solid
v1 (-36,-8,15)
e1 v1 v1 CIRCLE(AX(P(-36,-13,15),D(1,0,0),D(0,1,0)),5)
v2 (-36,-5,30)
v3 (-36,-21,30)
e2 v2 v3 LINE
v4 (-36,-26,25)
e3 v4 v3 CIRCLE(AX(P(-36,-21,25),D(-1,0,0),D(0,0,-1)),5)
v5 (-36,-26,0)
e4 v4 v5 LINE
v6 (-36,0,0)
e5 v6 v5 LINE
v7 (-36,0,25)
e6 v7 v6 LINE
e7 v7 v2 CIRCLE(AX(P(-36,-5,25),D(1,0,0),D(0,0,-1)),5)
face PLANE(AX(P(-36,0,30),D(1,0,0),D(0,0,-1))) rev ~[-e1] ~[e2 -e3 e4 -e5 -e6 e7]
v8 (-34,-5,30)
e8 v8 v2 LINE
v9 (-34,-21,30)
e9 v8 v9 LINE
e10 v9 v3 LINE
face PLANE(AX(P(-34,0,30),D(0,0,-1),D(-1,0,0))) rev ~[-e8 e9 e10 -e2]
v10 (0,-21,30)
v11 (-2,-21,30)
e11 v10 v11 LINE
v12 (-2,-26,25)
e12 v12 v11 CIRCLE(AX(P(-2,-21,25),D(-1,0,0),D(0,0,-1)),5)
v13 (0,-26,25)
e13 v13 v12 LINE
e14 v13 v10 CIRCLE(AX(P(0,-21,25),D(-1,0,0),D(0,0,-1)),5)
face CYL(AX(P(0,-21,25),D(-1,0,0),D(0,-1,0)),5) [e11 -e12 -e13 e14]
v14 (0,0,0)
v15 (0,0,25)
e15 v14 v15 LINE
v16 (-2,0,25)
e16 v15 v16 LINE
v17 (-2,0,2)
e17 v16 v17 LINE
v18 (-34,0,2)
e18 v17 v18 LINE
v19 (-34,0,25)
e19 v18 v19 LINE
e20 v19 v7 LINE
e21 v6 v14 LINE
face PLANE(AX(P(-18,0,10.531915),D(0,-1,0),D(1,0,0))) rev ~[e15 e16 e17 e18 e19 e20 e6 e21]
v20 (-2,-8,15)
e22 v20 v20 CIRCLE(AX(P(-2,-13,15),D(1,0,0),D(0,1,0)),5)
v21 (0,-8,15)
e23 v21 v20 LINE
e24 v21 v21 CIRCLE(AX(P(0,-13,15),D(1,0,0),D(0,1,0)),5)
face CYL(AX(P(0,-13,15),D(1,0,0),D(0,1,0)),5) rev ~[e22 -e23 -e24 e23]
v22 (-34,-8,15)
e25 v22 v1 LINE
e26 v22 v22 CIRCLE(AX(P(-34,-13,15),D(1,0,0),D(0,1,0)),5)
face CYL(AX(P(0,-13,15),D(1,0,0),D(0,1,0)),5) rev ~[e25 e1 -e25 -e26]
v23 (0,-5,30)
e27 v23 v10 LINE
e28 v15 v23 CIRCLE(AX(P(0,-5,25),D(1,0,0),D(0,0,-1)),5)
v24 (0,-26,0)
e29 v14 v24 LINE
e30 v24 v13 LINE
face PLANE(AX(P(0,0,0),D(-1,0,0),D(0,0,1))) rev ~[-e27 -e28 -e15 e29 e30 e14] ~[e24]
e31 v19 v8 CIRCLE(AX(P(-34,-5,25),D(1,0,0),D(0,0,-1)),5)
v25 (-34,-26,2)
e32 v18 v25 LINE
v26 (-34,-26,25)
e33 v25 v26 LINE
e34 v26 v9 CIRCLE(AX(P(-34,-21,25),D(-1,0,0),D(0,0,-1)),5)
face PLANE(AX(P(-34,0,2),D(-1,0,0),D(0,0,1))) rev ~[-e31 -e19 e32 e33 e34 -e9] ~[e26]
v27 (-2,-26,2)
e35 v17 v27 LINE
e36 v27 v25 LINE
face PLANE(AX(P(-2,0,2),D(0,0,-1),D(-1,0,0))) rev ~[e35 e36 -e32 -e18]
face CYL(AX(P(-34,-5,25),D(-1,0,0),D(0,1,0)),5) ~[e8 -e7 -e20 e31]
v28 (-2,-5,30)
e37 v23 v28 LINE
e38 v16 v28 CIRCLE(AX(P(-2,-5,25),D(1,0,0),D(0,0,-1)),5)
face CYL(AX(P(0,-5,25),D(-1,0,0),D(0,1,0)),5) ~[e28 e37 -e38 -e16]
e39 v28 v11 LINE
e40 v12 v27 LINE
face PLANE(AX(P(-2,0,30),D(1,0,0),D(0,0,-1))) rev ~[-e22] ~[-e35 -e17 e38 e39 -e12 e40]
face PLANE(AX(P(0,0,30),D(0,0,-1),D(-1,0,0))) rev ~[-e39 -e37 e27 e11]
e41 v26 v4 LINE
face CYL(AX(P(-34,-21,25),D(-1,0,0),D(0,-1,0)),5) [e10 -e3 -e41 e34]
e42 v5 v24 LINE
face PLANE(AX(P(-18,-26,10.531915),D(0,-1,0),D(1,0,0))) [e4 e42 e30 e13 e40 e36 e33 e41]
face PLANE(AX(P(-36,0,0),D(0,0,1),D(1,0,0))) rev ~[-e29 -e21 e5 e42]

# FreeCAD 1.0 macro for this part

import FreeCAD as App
import Part
import Sketcher
Q = App.Units.Quantity


def edges_at(feature, points):
    """Names of the edges that pass closest to the given points."""
    edges = feature.Shape.Edges
    near = lambda p: min(range(len(edges)), key=lambda i: edges[i].distToShape(Part.Vertex(*p))[0])
    return sorted({f"Edge{near(p) + 1}" for p in points})


def add_polygon(sketch, points):
    """Adds a closed chain of lines whose ends are joined by coincident constraints."""
    first, n = sketch.GeometryCount, len(points)
    for a, b in zip(points, points[1:] + points[:1]):
        sketch.addGeometry(Part.LineSegment(App.Vector(*a, 0), App.Vector(*b, 0)), False)
    for i in range(n):
        sketch.addConstraint(Sketcher.Constraint("Coincident", first + i, 2, first + (i + 1) % n, 1))

doc = App.newDocument("Part")
body = doc.addObject("PartDesign::Body", "Body")

sketch1 = body.newObject("Sketcher::SketchObject", "Sketch")
sketch1.AttachmentSupport = (doc.getObject("XZ_Plane"), [""])
sketch1.MapMode = "FlatFace"
add_polygon(sketch1, [(-36, 0), (0, 0), (0, 30), (-2, 30), (-2, 2), (-34, 2), (-34, 30), (-36, 30)])
sketch1.addConstraint(Sketcher.Constraint("Horizontal", 0))
sketch1.addConstraint(Sketcher.Constraint("Vertical", 1))
sketch1.addConstraint(Sketcher.Constraint("Horizontal", 2))
sketch1.addConstraint(Sketcher.Constraint("Vertical", 3))
sketch1.addConstraint(Sketcher.Constraint("Horizontal", 4))
sketch1.addConstraint(Sketcher.Constraint("Vertical", 5))
sketch1.addConstraint(Sketcher.Constraint("Horizontal", 6))
sketch1.addConstraint(Sketcher.Constraint("Vertical", 7))
sketch1.addConstraint(Sketcher.Constraint("Coincident", 0, 2, -1, 1))
sketch1.addConstraint(Sketcher.Constraint("Horizontal", 2, 2, 5, 2))
sketch1.addConstraint(Sketcher.Constraint("Equal", 2, 6))
sketch1.addConstraint(Sketcher.Constraint("DistanceX", 0, 1, 0, 2, Q("36 mm")))
sketch1.addConstraint(Sketcher.Constraint("DistanceX", 2, 2, 2, 1, Q("2 mm")))
sketch1.addConstraint(Sketcher.Constraint("DistanceY", 1, 1, 1, 2, Q("30 mm")))
sketch1.addConstraint(Sketcher.Constraint("DistanceY", 3, 2, 3, 1, Q("28 mm")))
pad1 = body.newObject("PartDesign::Pad", "Pad")
pad1.Profile = sketch1
pad1.Length = 26

sketch2 = body.newObject("Sketcher::SketchObject", "Sketch001")
sketch2.AttachmentSupport = (doc.getObject("YZ_Plane"), [""])
sketch2.MapMode = "FlatFace"
sketch2.addGeometry(Part.Circle(App.Vector(-13, 15, 0), App.Vector(0, 0, 1), 5), False)
sketch2.addConstraint(Sketcher.Constraint("Diameter", 0, Q("10 mm")))
sketch2.addConstraint(Sketcher.Constraint("DistanceX", 0, 3, -1, 1, Q("13 mm")))
sketch2.addConstraint(Sketcher.Constraint("DistanceY", -1, 1, 0, 3, Q("15 mm")))
pocket1 = body.newObject("PartDesign::Pocket", "Pocket")
pocket1.Profile = sketch2
pocket1.Length = 52.2
doc.recompute()

fillet = body.newObject("PartDesign::Fillet", "Fillet")
fillet.Base = (pocket1, edges_at(pocket1, [
    (-1, 0, 30),
    (-1, -26, 30),
    (-35, 0, 30),
    (-35, -26, 30),
]))
fillet.Radius = 5

doc.recompute()
